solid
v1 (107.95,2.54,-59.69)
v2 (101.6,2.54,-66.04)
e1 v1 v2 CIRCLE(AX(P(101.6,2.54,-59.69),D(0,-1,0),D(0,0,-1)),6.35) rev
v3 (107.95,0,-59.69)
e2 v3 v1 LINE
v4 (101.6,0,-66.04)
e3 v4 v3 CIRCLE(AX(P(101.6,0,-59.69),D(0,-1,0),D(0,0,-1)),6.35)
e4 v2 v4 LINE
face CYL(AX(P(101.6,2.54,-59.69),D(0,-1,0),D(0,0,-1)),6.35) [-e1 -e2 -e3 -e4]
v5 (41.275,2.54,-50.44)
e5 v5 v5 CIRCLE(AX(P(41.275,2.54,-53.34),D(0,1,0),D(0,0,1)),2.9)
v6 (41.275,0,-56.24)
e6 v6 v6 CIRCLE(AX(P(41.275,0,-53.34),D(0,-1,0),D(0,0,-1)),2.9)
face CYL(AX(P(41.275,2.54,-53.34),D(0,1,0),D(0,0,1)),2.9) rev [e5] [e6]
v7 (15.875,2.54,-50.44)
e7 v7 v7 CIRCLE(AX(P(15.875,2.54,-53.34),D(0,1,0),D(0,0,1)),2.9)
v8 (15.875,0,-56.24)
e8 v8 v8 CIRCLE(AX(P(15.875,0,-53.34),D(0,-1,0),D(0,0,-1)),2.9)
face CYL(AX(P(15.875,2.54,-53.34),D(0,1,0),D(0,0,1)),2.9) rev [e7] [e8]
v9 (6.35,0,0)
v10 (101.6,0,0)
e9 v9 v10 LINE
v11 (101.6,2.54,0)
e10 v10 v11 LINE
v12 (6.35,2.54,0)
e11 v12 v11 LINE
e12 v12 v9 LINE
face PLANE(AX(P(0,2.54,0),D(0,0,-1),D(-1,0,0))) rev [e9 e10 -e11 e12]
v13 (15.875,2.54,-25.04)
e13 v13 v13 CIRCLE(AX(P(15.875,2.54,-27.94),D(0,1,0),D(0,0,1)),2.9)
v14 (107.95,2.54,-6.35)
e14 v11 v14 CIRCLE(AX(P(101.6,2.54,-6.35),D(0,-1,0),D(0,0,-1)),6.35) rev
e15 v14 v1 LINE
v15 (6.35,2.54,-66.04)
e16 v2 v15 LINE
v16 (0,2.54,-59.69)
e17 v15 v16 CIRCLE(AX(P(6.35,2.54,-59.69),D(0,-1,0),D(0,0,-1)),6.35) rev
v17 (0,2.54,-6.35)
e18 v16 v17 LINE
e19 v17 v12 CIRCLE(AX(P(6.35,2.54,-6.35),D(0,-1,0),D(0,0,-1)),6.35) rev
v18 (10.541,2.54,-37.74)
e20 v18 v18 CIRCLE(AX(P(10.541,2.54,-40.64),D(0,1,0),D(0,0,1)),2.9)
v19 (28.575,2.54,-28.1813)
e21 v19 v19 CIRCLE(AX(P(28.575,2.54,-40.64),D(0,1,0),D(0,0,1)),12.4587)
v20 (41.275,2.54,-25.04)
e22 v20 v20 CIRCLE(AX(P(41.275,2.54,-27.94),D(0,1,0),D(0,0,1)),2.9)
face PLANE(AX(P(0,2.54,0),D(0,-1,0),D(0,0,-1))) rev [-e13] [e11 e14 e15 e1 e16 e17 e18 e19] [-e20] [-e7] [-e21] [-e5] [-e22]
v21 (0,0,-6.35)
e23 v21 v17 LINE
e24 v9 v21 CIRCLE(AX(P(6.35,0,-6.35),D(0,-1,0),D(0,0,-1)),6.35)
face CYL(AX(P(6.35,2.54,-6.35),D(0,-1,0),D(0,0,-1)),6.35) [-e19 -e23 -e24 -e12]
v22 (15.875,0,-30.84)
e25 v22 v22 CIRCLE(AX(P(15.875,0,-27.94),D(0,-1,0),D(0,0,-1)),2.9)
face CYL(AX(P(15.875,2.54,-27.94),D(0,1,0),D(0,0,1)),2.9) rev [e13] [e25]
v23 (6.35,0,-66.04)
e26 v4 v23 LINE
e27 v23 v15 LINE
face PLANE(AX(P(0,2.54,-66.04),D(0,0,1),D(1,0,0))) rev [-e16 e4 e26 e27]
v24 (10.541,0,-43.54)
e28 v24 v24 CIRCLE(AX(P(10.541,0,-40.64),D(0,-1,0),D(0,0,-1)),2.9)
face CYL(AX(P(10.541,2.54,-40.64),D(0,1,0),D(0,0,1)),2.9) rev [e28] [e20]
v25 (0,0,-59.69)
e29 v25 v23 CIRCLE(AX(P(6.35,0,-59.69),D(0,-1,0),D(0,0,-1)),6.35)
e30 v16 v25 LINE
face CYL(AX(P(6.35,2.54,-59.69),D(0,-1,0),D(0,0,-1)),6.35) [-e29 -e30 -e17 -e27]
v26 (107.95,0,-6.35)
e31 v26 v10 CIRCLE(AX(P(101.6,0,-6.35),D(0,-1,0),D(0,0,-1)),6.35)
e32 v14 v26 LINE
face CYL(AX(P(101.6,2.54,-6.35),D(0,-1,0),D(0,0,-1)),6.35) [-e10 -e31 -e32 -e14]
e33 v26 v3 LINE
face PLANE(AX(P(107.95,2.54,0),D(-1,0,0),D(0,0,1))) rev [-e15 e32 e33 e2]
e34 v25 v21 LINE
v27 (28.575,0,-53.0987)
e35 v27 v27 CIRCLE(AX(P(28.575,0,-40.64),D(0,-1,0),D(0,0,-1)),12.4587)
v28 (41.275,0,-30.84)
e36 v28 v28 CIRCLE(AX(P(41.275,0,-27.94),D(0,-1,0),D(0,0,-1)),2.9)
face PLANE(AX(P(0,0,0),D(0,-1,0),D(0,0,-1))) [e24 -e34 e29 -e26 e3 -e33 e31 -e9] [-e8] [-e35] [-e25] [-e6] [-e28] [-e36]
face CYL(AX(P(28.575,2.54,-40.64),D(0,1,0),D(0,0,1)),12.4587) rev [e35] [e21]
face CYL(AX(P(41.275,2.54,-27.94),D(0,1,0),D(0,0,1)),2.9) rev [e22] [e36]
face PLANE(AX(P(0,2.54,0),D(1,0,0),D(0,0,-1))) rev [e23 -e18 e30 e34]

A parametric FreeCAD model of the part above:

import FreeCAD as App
import Part
import Sketcher
from FreeCAD import Vector
Q = App.Units.Quantity


def edges_at(feature, points):
    """Names of the edges that pass closest to the given points."""
    edges = feature.Shape.Edges
    near = lambda p: min(range(len(edges)), key=lambda i: edges[i].distToShape(Part.Vertex(*p))[0])
    return sorted({f"Edge{near(p) + 1}" for p in points})


def add_polygon(sketch, points):
    """Adds a closed chain of lines whose ends are joined by coincident constraints."""
    first, n = sketch.GeometryCount, len(points)
    for a, b in zip(points, points[1:] + points[:1]):
        sketch.addGeometry(Part.LineSegment(App.Vector(*a, 0), App.Vector(*b, 0)), False)
    for i in range(n):
        sketch.addConstraint(Sketcher.Constraint("Coincident", first + i, 2, first + (i + 1) % n, 1))

doc = App.newDocument("Part")
body = doc.addObject("PartDesign::Body", "Body")

# Sketch on XZ plane
sketch1 = body.newObject("Sketcher::SketchObject", "Sketch")
sketch1.AttachmentSupport = (doc.getObject("XZ_Plane"), [""])
sketch1.MapMode = "FlatFace"
add_polygon(sketch1, [(0, -66), (0, 0), (108, 0), (108, -66)])  # lines 0-3
sketch1.addConstraint([
    Sketcher.Constraint("Vertical", 0),
    Sketcher.Constraint("Horizontal", 1),
    Sketcher.Constraint("Vertical", 2),
    Sketcher.Constraint("Horizontal", 3),
    Sketcher.Constraint("Coincident", 0, 2, -1, 1),
    Sketcher.Constraint("DistanceY", 0, 1, 0, 2, Q("2.6 in")),
    Sketcher.Constraint("DistanceX", 1, 1, 1, 2, Q("4.25 in")),
])
pad1 = body.newObject("PartDesign::Pad", "Pad")
pad1.Profile = sketch1
pad1.Length = Q("0.1 in")
pad1.Reversed = True

# Sketch on XZ plane
sketch2 = body.newObject("Sketcher::SketchObject", "Sketch001")
sketch2.AttachmentSupport = (doc.getObject("XZ_Plane"), [""])
sketch2.MapMode = "FlatFace"
sketch2.AttachmentOffset = App.Placement(Vector(0, 0, -0.1 * 25.4), App.Rotation())
sketch2.addGeometry([
    Part.Circle(Vector(15.9, -53.3, 0), Vector(0, 0, 1), 2.9),  # 0
    Part.Circle(Vector(41.3, -53.3, 0), Vector(0, 0, 1), 2.9),  # 1
    Part.Circle(Vector(41.3, -27.9, 0), Vector(0, 0, 1), 2.9),  # 2
    Part.Circle(Vector(15.9, -27.9, 0), Vector(0, 0, 1), 2.9),  # 3
    Part.Circle(Vector(10.5, -40.6, 0), Vector(0, 0, 1), 2.9),  # 4
], False)
sketch2.addConstraint([
    Sketcher.Constraint("Equal", 0, 1),
    Sketcher.Constraint("Equal", 1, 2),
    Sketcher.Constraint("Equal", 2, 3),
    Sketcher.Constraint("Equal", 3, 4),
    Sketcher.Constraint("Horizontal", 0, 3, 1, 3),
    Sketcher.Constraint("Horizontal", 2, 3, 3, 3),
    Sketcher.Constraint("Vertical", 1, 3, 2, 3),
    Sketcher.Constraint("Vertical", 0, 3, 3, 3),
    Sketcher.Constraint("DistanceX", 0, 3, 1, 3, Q("1 in")),
    Sketcher.Constraint("DistanceY", 1, 3, 2, 3, Q("1 in")),
    Sketcher.Constraint("DistanceY", 0, 3, -1, 1, Q("2.1 in")),
    Sketcher.Constraint("DistanceY", 4, 3, -1, 1, Q("1.6 in")),
    Sketcher.Constraint("Diameter", 0, 5.8),
    Sketcher.Constraint("DistanceX", 4, 3, 3, 3, Q("0.21 in")),
    Sketcher.Constraint("DistanceX", -1, 1, 0, 3, Q("0.625 in")),
])
doc.recompute()
hole = body.newObject("PartDesign::Hole", "Hole")
hole.Profile = sketch2
hole.ThreadType = "None"
hole.Diameter = 5.8
hole.DepthType = "ThroughAll"
hole.Reversed = True

# Sketch on XZ plane
sketch3 = body.newObject("Sketcher::SketchObject", "Sketch002")
sketch3.AttachmentSupport = (doc.getObject("XZ_Plane"), [""])
sketch3.MapMode = "FlatFace"
sketch3.AttachmentOffset = App.Placement(Vector(0, 0, -0.1 * 25.4), App.Rotation())
sketch3.addGeometry(Part.Circle(Vector(29, -41, 0), Vector(0, 0, 1), 12), False)
sketch3.addConstraint([
    Sketcher.Constraint("Diameter", 0, Q("0.981 in")),
    Sketcher.Constraint("DistanceY", 0, 3, -1, 1, Q("1.6 in")),
    Sketcher.Constraint("DistanceX", -1, 1, 0, 3, Q("1.125 in")),
])
doc.recompute()
hole2 = body.newObject("PartDesign::Hole", "Hole001")
hole2.Profile = sketch3
hole2.ThreadType = "None"
hole2.Diameter = Q("0.981 in")
hole2.DepthType = "ThroughAll"
hole2.Reversed = True
doc.recompute()

fillet = body.newObject("PartDesign::Fillet", "Fillet")
fillet.Base = (hole2, edges_at(hole2, [
    (0, 1.27, -66.04),
    (107.95, 1.27, -66.04),
    (107.95, 1.27, 0),
    (0, 1.27, 0),
]))
fillet.Radius = Q("0.25 in")

doc.recompute()
